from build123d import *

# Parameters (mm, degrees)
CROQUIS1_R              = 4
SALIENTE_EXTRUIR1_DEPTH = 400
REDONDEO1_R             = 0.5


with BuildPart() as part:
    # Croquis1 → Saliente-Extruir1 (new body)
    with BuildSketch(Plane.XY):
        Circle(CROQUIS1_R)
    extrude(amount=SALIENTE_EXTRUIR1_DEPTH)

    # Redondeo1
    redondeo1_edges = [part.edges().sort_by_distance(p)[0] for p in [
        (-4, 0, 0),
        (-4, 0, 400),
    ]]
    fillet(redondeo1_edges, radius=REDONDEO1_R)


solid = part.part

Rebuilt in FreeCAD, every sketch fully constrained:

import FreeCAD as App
import Part
import Sketcher
Q = App.Units.Quantity


def edges_at(feature, points):
    """Names of the edges that pass closest to the given points."""
    edges = feature.Shape.Edges
    near = lambda p: min(range(len(edges)), key=lambda i: edges[i].distToShape(Part.Vertex(*p))[0])
    return sorted({f"Edge{near(p) + 1}" for p in points})

doc = App.newDocument("Part")
body = doc.addObject("PartDesign::Body", "Body")

# Sketch on XY plane
sketch1 = doc.addObject("Sketcher::SketchObject", "Sketch")
body.addObject(sketch1)
sketch1.AttachmentSupport = (doc.XY_Plane, [""])
sketch1.MapMode = "FlatFace"
sketch1.addGeometry(Part.Circle(App.Vector(0, 0, 0), App.Vector(0, 0, 1), 4), False)
sketch1.addConstraint([
    Sketcher.Constraint("Coincident", 0, 3, -1, 1),
    Sketcher.Constraint("Diameter", 0, Q("8 mm")),
])
pad1 = doc.addObject("PartDesign::Pad", "Pad")
body.addObject(pad1)
pad1.Profile = sketch1
pad1.Length = 400
doc.recompute()

fillet = doc.addObject("PartDesign::Fillet", "Fillet")
body.addObject(fillet)
fillet.Base = (pad1, edges_at(pad1, [(-4, 0, 0), (-4, 0, 400)]))
fillet.Radius = 0.5

doc.recompute()
